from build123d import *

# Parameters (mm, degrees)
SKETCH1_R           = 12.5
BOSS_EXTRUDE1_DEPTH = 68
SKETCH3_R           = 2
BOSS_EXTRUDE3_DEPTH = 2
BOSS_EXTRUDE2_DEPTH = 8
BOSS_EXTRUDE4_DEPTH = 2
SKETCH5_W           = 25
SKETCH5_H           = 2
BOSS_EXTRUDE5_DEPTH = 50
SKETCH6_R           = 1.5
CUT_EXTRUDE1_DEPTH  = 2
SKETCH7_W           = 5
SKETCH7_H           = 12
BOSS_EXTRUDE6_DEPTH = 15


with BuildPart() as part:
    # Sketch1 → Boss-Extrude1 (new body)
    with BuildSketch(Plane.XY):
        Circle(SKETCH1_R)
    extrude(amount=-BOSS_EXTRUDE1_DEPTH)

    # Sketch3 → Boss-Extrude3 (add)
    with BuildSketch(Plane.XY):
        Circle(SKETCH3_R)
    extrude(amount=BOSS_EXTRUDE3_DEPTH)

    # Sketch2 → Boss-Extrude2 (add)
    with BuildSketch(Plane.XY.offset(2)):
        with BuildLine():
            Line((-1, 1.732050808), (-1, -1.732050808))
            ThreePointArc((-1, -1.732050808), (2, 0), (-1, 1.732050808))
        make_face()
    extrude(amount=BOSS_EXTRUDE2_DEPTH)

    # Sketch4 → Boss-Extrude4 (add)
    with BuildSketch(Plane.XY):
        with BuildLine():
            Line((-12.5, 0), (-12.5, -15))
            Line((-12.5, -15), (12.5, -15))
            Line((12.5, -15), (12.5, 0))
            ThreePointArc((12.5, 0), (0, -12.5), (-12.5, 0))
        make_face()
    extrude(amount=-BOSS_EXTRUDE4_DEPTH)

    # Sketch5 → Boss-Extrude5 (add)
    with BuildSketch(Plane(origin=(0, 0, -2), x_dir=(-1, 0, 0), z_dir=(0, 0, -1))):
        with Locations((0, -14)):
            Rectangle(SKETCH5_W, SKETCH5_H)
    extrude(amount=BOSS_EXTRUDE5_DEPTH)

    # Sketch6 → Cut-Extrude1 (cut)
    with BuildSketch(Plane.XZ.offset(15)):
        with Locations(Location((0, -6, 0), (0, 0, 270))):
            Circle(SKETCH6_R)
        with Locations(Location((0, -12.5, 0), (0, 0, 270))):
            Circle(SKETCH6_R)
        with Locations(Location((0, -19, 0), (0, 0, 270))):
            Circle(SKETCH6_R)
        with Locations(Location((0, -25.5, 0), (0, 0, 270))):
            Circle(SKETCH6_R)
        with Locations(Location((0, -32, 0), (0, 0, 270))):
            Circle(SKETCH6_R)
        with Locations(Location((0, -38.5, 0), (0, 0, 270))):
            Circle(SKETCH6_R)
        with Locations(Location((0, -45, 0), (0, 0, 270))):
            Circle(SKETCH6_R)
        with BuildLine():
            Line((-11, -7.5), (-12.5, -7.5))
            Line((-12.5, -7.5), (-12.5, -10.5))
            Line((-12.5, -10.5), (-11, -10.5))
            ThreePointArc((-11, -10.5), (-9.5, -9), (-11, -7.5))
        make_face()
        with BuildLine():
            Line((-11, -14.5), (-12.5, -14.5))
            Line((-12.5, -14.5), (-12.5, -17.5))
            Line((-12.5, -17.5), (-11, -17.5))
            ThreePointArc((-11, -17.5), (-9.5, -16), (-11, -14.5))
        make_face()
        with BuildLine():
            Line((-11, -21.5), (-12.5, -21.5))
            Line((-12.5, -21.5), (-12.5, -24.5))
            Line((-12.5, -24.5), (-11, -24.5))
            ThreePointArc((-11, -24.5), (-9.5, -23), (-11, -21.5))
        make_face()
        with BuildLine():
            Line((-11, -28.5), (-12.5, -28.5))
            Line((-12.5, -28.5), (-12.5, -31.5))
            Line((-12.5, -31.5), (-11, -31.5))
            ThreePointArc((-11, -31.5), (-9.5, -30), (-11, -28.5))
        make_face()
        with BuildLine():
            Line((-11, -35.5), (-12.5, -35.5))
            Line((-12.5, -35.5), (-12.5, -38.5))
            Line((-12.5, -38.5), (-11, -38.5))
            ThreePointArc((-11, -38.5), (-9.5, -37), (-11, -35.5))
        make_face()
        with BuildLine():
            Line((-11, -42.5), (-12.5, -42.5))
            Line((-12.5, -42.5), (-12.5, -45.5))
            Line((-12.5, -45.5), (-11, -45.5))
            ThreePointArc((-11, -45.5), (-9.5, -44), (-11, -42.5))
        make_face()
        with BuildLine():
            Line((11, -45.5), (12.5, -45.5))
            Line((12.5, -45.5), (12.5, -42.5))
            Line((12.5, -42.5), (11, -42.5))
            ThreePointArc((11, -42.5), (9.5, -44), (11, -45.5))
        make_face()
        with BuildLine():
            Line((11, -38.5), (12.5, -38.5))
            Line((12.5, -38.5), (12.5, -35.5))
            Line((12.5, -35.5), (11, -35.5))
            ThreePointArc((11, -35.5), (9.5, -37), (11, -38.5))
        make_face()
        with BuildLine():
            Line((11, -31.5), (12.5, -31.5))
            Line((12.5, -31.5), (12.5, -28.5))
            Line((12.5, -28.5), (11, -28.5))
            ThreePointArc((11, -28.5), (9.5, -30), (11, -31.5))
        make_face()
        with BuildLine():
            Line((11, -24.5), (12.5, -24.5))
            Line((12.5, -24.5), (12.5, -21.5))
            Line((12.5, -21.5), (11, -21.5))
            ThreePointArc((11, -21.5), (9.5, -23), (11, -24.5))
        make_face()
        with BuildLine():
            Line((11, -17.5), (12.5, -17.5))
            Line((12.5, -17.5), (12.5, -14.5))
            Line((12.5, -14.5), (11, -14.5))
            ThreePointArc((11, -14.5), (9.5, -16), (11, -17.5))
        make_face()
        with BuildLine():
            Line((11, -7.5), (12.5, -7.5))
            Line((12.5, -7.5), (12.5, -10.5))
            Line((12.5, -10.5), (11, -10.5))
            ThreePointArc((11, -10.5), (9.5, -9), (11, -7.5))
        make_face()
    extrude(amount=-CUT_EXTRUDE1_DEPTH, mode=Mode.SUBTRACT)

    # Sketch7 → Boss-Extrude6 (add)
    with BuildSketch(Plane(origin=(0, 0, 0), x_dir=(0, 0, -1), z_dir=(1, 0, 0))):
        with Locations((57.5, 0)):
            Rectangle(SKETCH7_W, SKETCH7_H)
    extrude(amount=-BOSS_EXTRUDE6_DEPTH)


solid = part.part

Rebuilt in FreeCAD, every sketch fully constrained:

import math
import FreeCAD as App
import Part
import Sketcher


def add_polygon(sketch, points):
    """Adds a closed chain of lines whose ends are joined by coincident constraints."""
    first, n = sketch.GeometryCount, len(points)
    for a, b in zip(points, points[1:] + points[:1]):
        sketch.addGeometry(Part.LineSegment(App.Vector(*a, 0), App.Vector(*b, 0)), False)
    for i in range(n):
        sketch.addConstraint(Sketcher.Constraint("Coincident", first + i, 2, first + (i + 1) % n, 1))

doc = App.newDocument("Part")
params = doc.addObject("Spreadsheet::Sheet", "Params")
for row, (alias, value) in enumerate([
    ("sketch1_diameter", "25 mm"),
    ("pad1_length", "68 mm"),
    ("sketch2_diameter", "4 mm"),
    ("pad2_length", "2 mm"),
    ("sketch3_radius", "2 mm"),
    ("pad3_length", "8 mm"),
    ("sketch4_radius", "12.5 mm"),
    ("sketch4_height", "15 mm"),
    ("pad4_length", "2 mm"),
    ("sketch5_width", "25 mm"),
    ("sketch5_height", "2 mm"),
    ("pad5_length", "50 mm"),
    ("sketch6_diameter", "3 mm"),
    ("sketch6_width", "1.5 mm"),
    ("pocket1_length", "2 mm"),
    ("sketch7_width", "12 mm"),
    ("sketch7_height", "5 mm"),
    ("pad6_length", "15 mm"),
], start=1):
    params.set(f"A{row}", alias)
    params.set(f"B{row}", "=" + value)
    params.setAlias(f"B{row}", alias)

body = doc.addObject("PartDesign::Body", "Body")

sketch1 = body.newObject("Sketcher::SketchObject", "Sketch")
sketch1.AttachmentSupport = (doc.getObject("XY_Plane"), [""])
sketch1.MapMode = "FlatFace"
sketch1.addGeometry(Part.Circle(App.Vector(0, 0, 0), App.Vector(0, 0, 1), 12), False)
sketch1.addConstraint([
    Sketcher.Constraint("Coincident", 0, 3, -1, 1),
    Sketcher.Constraint("Diameter", 0, 25.0),
])
sketch1.setExpression("Constraints[1]", "Params.sketch1_diameter")
pad1 = body.newObject("PartDesign::Pad", "Pad")
pad1.Profile = sketch1
pad1.setExpression("Length", "Params.pad1_length")
pad1.Reversed = True

sketch2 = body.newObject("Sketcher::SketchObject", "Sketch001")
sketch2.AttachmentSupport = (doc.getObject("XY_Plane"), [""])
sketch2.MapMode = "FlatFace"
sketch2.addGeometry(Part.Circle(App.Vector(0, 0, 0), App.Vector(0, 0, 1), 2), False)
sketch2.addConstraint([
    Sketcher.Constraint("Coincident", 0, 3, -1, 1),
    Sketcher.Constraint("Diameter", 0, 4.0),
])
sketch2.setExpression("Constraints[1]", "Params.sketch2_diameter")
pad2 = body.newObject("PartDesign::Pad", "Pad001")
pad2.Profile = sketch2
pad2.setExpression("Length", "Params.pad2_length")

sketch3 = body.newObject("Sketcher::SketchObject", "Sketch002")
sketch3.AttachmentSupport = (doc.getObject("XY_Plane"), [""])
sketch3.MapMode = "FlatFace"
sketch3.AttachmentOffset = App.Placement(App.Vector(0, 0, 2), App.Rotation())
sketch3.addGeometry([
    Part.LineSegment(App.Vector(-1, 1.7, 0), App.Vector(-1, -1.7, 0)),
    Part.ArcOfCircle(Part.Circle(App.Vector(0, 0, 0), App.Vector(0, 0, 1), 2), math.radians(-120), math.radians(120)),
], False)
sketch3.addConstraint([
    Sketcher.Constraint("Coincident", 0, 1, 1, 2),
    Sketcher.Constraint("Coincident", 1, 1, 0, 2),
    Sketcher.Constraint("Vertical", 0),
    Sketcher.Constraint("Coincident", 1, 3, -1, 1),
    Sketcher.Constraint("Radius", 1, 2.0),
    Sketcher.Constraint("DistanceX", 0, 1, -1, 1, 1.0),
])
sketch3.setExpression("Constraints[4]", "Params.sketch3_radius")
pad3 = body.newObject("PartDesign::Pad", "Pad002")
pad3.Profile = sketch3
pad3.setExpression("Length", "Params.pad3_length")

sketch4 = body.newObject("Sketcher::SketchObject", "Sketch003")
sketch4.AttachmentSupport = (doc.getObject("XY_Plane"), [""])
sketch4.MapMode = "FlatFace"
sketch4.addGeometry([
    Part.LineSegment(App.Vector(-12, 0, 0), App.Vector(-12, -15, 0)),
    Part.LineSegment(App.Vector(-12, -15, 0), App.Vector(12, -15, 0)),
    Part.LineSegment(App.Vector(12, -15, 0), App.Vector(12, 0, 0)),
    Part.ArcOfCircle(Part.Circle(App.Vector(0, 0, 0), App.Vector(0, 0, 1), 12), math.radians(180), math.radians(360)),
], False)
sketch4.addConstraint([
    Sketcher.Constraint("Coincident", 0, 2, 1, 1),
    Sketcher.Constraint("Coincident", 1, 2, 2, 1),
    Sketcher.Constraint("Tangent", 2, 2, 3, 2),
    Sketcher.Constraint("Tangent", 3, 1, 0, 1),
    Sketcher.Constraint("Vertical", 0),
    Sketcher.Constraint("Horizontal", 1),
    Sketcher.Constraint("Vertical", 2),
    Sketcher.Constraint("Coincident", 3, 3, -1, 1),
    Sketcher.Constraint("Radius", 3, 12.5),
    Sketcher.Constraint("DistanceY", 0, 2, 0, 1, 15.0),
])
sketch4.setExpression("Constraints[8]", "Params.sketch4_radius")
sketch4.setExpression("Constraints[9]", "Params.sketch4_height")
pad4 = body.newObject("PartDesign::Pad", "Pad003")
pad4.Profile = sketch4
pad4.setExpression("Length", "Params.pad4_length")
pad4.Reversed = True

sketch5 = body.newObject("Sketcher::SketchObject", "Sketch004")
sketch5.AttachmentSupport = (doc.getObject("XY_Plane"), [""])
sketch5.MapMode = "FlatFace"
sketch5.AttachmentOffset = App.Placement(App.Vector(0, 0, -2), App.Rotation())
add_polygon(sketch5, [(12.5, -13), (12.5, -15), (-12.5, -15), (-12.5, -13)])
sketch5.addConstraint([
    Sketcher.Constraint("Vertical", 0),
    Sketcher.Constraint("Horizontal", 1),
    Sketcher.Constraint("Vertical", 2),
    Sketcher.Constraint("Horizontal", 3),
    Sketcher.Constraint("DistanceX", 1, 2, 1, 1, 25.0),
    Sketcher.Constraint("DistanceY", 0, 2, 0, 1, 2.0),
    Sketcher.Constraint("DistanceY", 0, 2, -1, 1, 15.0),
    Sketcher.Constraint("DistanceX", -1, 1, 0, 2, 12.5),
])
sketch5.setExpression("Constraints[8]", "Params.sketch5_width")
sketch5.setExpression("Constraints[9]", "Params.sketch5_height")
pad5 = body.newObject("PartDesign::Pad", "Pad004")
pad5.Profile = sketch5
pad5.setExpression("Length", "Params.pad5_length")
pad5.Reversed = True

sketch6 = body.newObject("Sketcher::SketchObject", "Sketch005")
sketch6.AttachmentSupport = (doc.getObject("XZ_Plane"), [""])
sketch6.MapMode = "FlatFace"
sketch6.AttachmentOffset = App.Placement(App.Vector(0, 0, 15), App.Rotation())
sketch6.addGeometry([
    Part.Circle(App.Vector(0, -6, 0), App.Vector(0, 0, 1), 1.5),
    Part.Circle(App.Vector(0, -12.5, 0), App.Vector(0, 0, 1), 1.5),
    Part.Circle(App.Vector(0, -19, 0), App.Vector(0, 0, 1), 1.5),
    Part.Circle(App.Vector(0, -25.5, 0), App.Vector(0, 0, 1), 1.5),
    Part.Circle(App.Vector(0, -32, 0), App.Vector(0, 0, 1), 1.5),
    Part.Circle(App.Vector(0, -38.5, 0), App.Vector(0, 0, 1), 1.5),
    Part.Circle(App.Vector(0, -45, 0), App.Vector(0, 0, 1), 1.5),
    Part.LineSegment(App.Vector(-11, -7.5, 0), App.Vector(-12.5, -7.5, 0)),
    Part.LineSegment(App.Vector(-12.5, -7.5, 0), App.Vector(-12.5, -10.5, 0)),
    Part.LineSegment(App.Vector(-12.5, -10.5, 0), App.Vector(-11, -10.5, 0)),
    Part.ArcOfCircle(Part.Circle(App.Vector(-11, -9, 0), App.Vector(0, 0, 1), 1.5), math.radians(-90), math.radians(90)),
    Part.LineSegment(App.Vector(-11, -14.5, 0), App.Vector(-12.5, -14.5, 0)),
    Part.LineSegment(App.Vector(-12.5, -14.5, 0), App.Vector(-12.5, -17.5, 0)),
    Part.LineSegment(App.Vector(-12.5, -17.5, 0), App.Vector(-11, -17.5, 0)),
    Part.ArcOfCircle(Part.Circle(App.Vector(-11, -16, 0), App.Vector(0, 0, 1), 1.5), math.radians(-90), math.radians(90)),
    Part.LineSegment(App.Vector(-11, -21.5, 0), App.Vector(-12.5, -21.5, 0)),
    Part.LineSegment(App.Vector(-12.5, -21.5, 0), App.Vector(-12.5, -24.5, 0)),
    Part.LineSegment(App.Vector(-12.5, -24.5, 0), App.Vector(-11, -24.5, 0)),
    Part.ArcOfCircle(Part.Circle(App.Vector(-11, -23, 0), App.Vector(0, 0, 1), 1.5), math.radians(-90), math.radians(90)),
    Part.LineSegment(App.Vector(-11, -28.5, 0), App.Vector(-12.5, -28.5, 0)),
    Part.LineSegment(App.Vector(-12.5, -28.5, 0), App.Vector(-12.5, -31.5, 0)),
    Part.LineSegment(App.Vector(-12.5, -31.5, 0), App.Vector(-11, -31.5, 0)),
    Part.ArcOfCircle(Part.Circle(App.Vector(-11, -30, 0), App.Vector(0, 0, 1), 1.5), math.radians(-90), math.radians(90)),
    Part.LineSegment(App.Vector(-11, -35.5, 0), App.Vector(-12.5, -35.5, 0)),
    Part.LineSegment(App.Vector(-12.5, -35.5, 0), App.Vector(-12.5, -38.5, 0)),
    Part.LineSegment(App.Vector(-12.5, -38.5, 0), App.Vector(-11, -38.5, 0)),
    Part.ArcOfCircle(Part.Circle(App.Vector(-11, -37, 0), App.Vector(0, 0, 1), 1.5), math.radians(-90), math.radians(90)),
    Part.LineSegment(App.Vector(-11, -42.5, 0), App.Vector(-12.5, -42.5, 0)),
    Part.LineSegment(App.Vector(-12.5, -42.5, 0), App.Vector(-12.5, -45.5, 0)),
    Part.LineSegment(App.Vector(-12.5, -45.5, 0), App.Vector(-11, -45.5, 0)),
    Part.ArcOfCircle(Part.Circle(App.Vector(-11, -44, 0), App.Vector(0, 0, 1), 1.5), math.radians(-90), math.radians(90)),
    Part.LineSegment(App.Vector(11, -45.5, 0), App.Vector(12.5, -45.5, 0)),
    Part.LineSegment(App.Vector(12.5, -45.5, 0), App.Vector(12.5, -42.5, 0)),
    Part.LineSegment(App.Vector(12.5, -42.5, 0), App.Vector(11, -42.5, 0)),
    Part.ArcOfCircle(Part.Circle(App.Vector(11, -44, 0), App.Vector(0, 0, 1), 1.5), math.radians(90), math.radians(270)),
    Part.LineSegment(App.Vector(11, -38.5, 0), App.Vector(12.5, -38.5, 0)),
    Part.LineSegment(App.Vector(12.5, -38.5, 0), App.Vector(12.5, -35.5, 0)),
    Part.LineSegment(App.Vector(12.5, -35.5, 0), App.Vector(11, -35.5, 0)),
    Part.ArcOfCircle(Part.Circle(App.Vector(11, -37, 0), App.Vector(0, 0, 1), 1.5), math.radians(90), math.radians(270)),
    Part.LineSegment(App.Vector(11, -31.5, 0), App.Vector(12.5, -31.5, 0)),
    Part.LineSegment(App.Vector(12.5, -31.5, 0), App.Vector(12.5, -28.5, 0)),
    Part.LineSegment(App.Vector(12.5, -28.5, 0), App.Vector(11, -28.5, 0)),
    Part.ArcOfCircle(Part.Circle(App.Vector(11, -30, 0), App.Vector(0, 0, 1), 1.5), math.radians(90), math.radians(270)),
    Part.LineSegment(App.Vector(11, -24.5, 0), App.Vector(12.5, -24.5, 0)),
    Part.LineSegment(App.Vector(12.5, -24.5, 0), App.Vector(12.5, -21.5, 0)),
    Part.LineSegment(App.Vector(12.5, -21.5, 0), App.Vector(11, -21.5, 0)),
    Part.ArcOfCircle(Part.Circle(App.Vector(11, -23, 0), App.Vector(0, 0, 1), 1.5), math.radians(90), math.radians(270)),
    Part.LineSegment(App.Vector(11, -17.5, 0), App.Vector(12.5, -17.5, 0)),
    Part.LineSegment(App.Vector(12.5, -17.5, 0), App.Vector(12.5, -14.5, 0)),
    Part.LineSegment(App.Vector(12.5, -14.5, 0), App.Vector(11, -14.5, 0)),
    Part.ArcOfCircle(Part.Circle(App.Vector(11, -16, 0), App.Vector(0, 0, 1), 1.5), math.radians(90), math.radians(270)),
    Part.LineSegment(App.Vector(12.5, -7.5, 0), App.Vector(11, -7.5, 0)),
    Part.ArcOfCircle(Part.Circle(App.Vector(11, -9, 0), App.Vector(0, 0, 1), 1.5), math.radians(90), math.radians(270)),
    Part.LineSegment(App.Vector(11, -10.5, 0), App.Vector(12.5, -10.5, 0)),
    Part.LineSegment(App.Vector(12.5, -10.5, 0), App.Vector(12.5, -7.5, 0)),
], False)
sketch6.addConstraint([
    Sketcher.Constraint("Coincident", 7, 2, 8, 1),
    Sketcher.Constraint("Coincident", 8, 2, 9, 1),
    Sketcher.Constraint("Tangent", 9, 2, 10, 1),
    Sketcher.Constraint("Tangent", 10, 2, 7, 1),
    Sketcher.Constraint("Coincident", 11, 2, 12, 1),
    Sketcher.Constraint("Coincident", 12, 2, 13, 1),
    Sketcher.Constraint("Tangent", 13, 2, 14, 1),
    Sketcher.Constraint("Tangent", 14, 2, 11, 1),
    Sketcher.Constraint("Coincident", 15, 2, 16, 1),
    Sketcher.Constraint("Coincident", 16, 2, 17, 1),
    Sketcher.Constraint("Tangent", 17, 2, 18, 1),
    Sketcher.Constraint("Tangent", 18, 2, 15, 1),
    Sketcher.Constraint("Coincident", 19, 2, 20, 1),
    Sketcher.Constraint("Coincident", 20, 2, 21, 1),
    Sketcher.Constraint("Tangent", 21, 2, 22, 1),
    Sketcher.Constraint("Tangent", 22, 2, 19, 1),
    Sketcher.Constraint("Coincident", 23, 2, 24, 1),
    Sketcher.Constraint("Coincident", 24, 2, 25, 1),
    Sketcher.Constraint("Tangent", 25, 2, 26, 1),
    Sketcher.Constraint("Tangent", 26, 2, 23, 1),
    Sketcher.Constraint("Coincident", 27, 2, 28, 1),
    Sketcher.Constraint("Coincident", 28, 2, 29, 1),
    Sketcher.Constraint("Tangent", 29, 2, 30, 1),
    Sketcher.Constraint("Tangent", 30, 2, 27, 1),
    Sketcher.Constraint("Coincident", 31, 2, 32, 1),
    Sketcher.Constraint("Coincident", 32, 2, 33, 1),
    Sketcher.Constraint("Tangent", 33, 2, 34, 1),
    Sketcher.Constraint("Tangent", 34, 2, 31, 1),
    Sketcher.Constraint("Coincident", 35, 2, 36, 1),
    Sketcher.Constraint("Coincident", 36, 2, 37, 1),
    Sketcher.Constraint("Tangent", 37, 2, 38, 1),
    Sketcher.Constraint("Tangent", 38, 2, 35, 1),
    Sketcher.Constraint("Coincident", 39, 2, 40, 1),
    Sketcher.Constraint("Coincident", 40, 2, 41, 1),
    Sketcher.Constraint("Tangent", 41, 2, 42, 1),
    Sketcher.Constraint("Tangent", 42, 2, 39, 1),
    Sketcher.Constraint("Coincident", 43, 2, 44, 1),
    Sketcher.Constraint("Coincident", 44, 2, 45, 1),
    Sketcher.Constraint("Tangent", 45, 2, 46, 1),
    Sketcher.Constraint("Tangent", 46, 2, 43, 1),
    Sketcher.Constraint("Coincident", 47, 2, 48, 1),
    Sketcher.Constraint("Coincident", 48, 2, 49, 1),
    Sketcher.Constraint("Tangent", 49, 2, 50, 1),
    Sketcher.Constraint("Tangent", 50, 2, 47, 1),
    Sketcher.Constraint("Tangent", 51, 2, 52, 1),
    Sketcher.Constraint("Tangent", 52, 2, 53, 1),
    Sketcher.Constraint("Coincident", 53, 2, 54, 1),
    Sketcher.Constraint("Coincident", 54, 2, 51, 1),
    Sketcher.Constraint("Horizontal", 7),
    Sketcher.Constraint("Vertical", 8),
    Sketcher.Constraint("Horizontal", 9),
    Sketcher.Constraint("Horizontal", 11),
    Sketcher.Constraint("Vertical", 12),
    Sketcher.Constraint("Horizontal", 13),
    Sketcher.Constraint("Horizontal", 15),
    Sketcher.Constraint("Vertical", 16),
    Sketcher.Constraint("Horizontal", 17),
    Sketcher.Constraint("Horizontal", 19),
    Sketcher.Constraint("Vertical", 20),
    Sketcher.Constraint("Horizontal", 21),
    Sketcher.Constraint("Horizontal", 23),
    Sketcher.Constraint("Vertical", 24),
    Sketcher.Constraint("Horizontal", 25),
    Sketcher.Constraint("Horizontal", 27),
    Sketcher.Constraint("Vertical", 28),
    Sketcher.Constraint("Horizontal", 29),
    Sketcher.Constraint("Horizontal", 31),
    Sketcher.Constraint("Vertical", 32),
    Sketcher.Constraint("Horizontal", 33),
    Sketcher.Constraint("Horizontal", 35),
    Sketcher.Constraint("Vertical", 36),
    Sketcher.Constraint("Horizontal", 37),
    Sketcher.Constraint("Horizontal", 39),
    Sketcher.Constraint("Vertical", 40),
    Sketcher.Constraint("Horizontal", 41),
    Sketcher.Constraint("Horizontal", 43),
    Sketcher.Constraint("Vertical", 44),
    Sketcher.Constraint("Horizontal", 45),
    Sketcher.Constraint("Horizontal", 47),
    Sketcher.Constraint("Vertical", 48),
    Sketcher.Constraint("Horizontal", 49),
    Sketcher.Constraint("Horizontal", 51),
    Sketcher.Constraint("Horizontal", 53),
    Sketcher.Constraint("Vertical", 54),
    Sketcher.Constraint("Equal", 0, 1),
    Sketcher.Constraint("Equal", 1, 2),
    Sketcher.Constraint("Equal", 2, 3),
    Sketcher.Constraint("Equal", 3, 4),
    Sketcher.Constraint("Equal", 4, 5),
    Sketcher.Constraint("Equal", 5, 6),
    Sketcher.Constraint("Equal", 6, 10),
    Sketcher.Constraint("Equal", 10, 14),
    Sketcher.Constraint("Equal", 14, 18),
    Sketcher.Constraint("Equal", 18, 22),
    Sketcher.Constraint("Equal", 22, 26),
    Sketcher.Constraint("Equal", 26, 30),
    Sketcher.Constraint("Equal", 30, 34),
    Sketcher.Constraint("Equal", 34, 38),
    Sketcher.Constraint("Equal", 38, 42),
    Sketcher.Constraint("Equal", 42, 46),
    Sketcher.Constraint("Equal", 46, 50),
    Sketcher.Constraint("Equal", 50, 52),
    Sketcher.Constraint("Symmetric", 30, 3, 34, 3, -2),
    Sketcher.Constraint("Symmetric", 26, 3, 38, 3, -2),
    Sketcher.Constraint("Symmetric", 22, 3, 42, 3, -2),
    Sketcher.Constraint("Symmetric", 18, 3, 46, 3, -2),
    Sketcher.Constraint("Symmetric", 14, 3, 50, 3, -2),
    Sketcher.Constraint("Symmetric", 10, 3, 52, 3, -2),
    Sketcher.Constraint("PointOnObject", 0, 3, -2),
    Sketcher.Constraint("PointOnObject", 1, 3, -2),
    Sketcher.Constraint("PointOnObject", 2, 3, -2),
    Sketcher.Constraint("PointOnObject", 3, 3, -2),
    Sketcher.Constraint("PointOnObject", 4, 3, -2),
    Sketcher.Constraint("PointOnObject", 5, 3, -2),
    Sketcher.Constraint("PointOnObject", 6, 3, -2),
    Sketcher.Constraint("Horizontal", 5, 3, 24, 2),
    Sketcher.Constraint("Vertical", 10, 3, 14, 3),
    Sketcher.Constraint("Vertical", 14, 3, 18, 3),
    Sketcher.Constraint("Vertical", 18, 3, 22, 3),
    Sketcher.Constraint("Vertical", 22, 3, 26, 3),
    Sketcher.Constraint("Vertical", 26, 3, 30, 3),
    Sketcher.Constraint("Vertical", 8, 2, 11, 2),
    Sketcher.Constraint("Vertical", 12, 2, 15, 2),
    Sketcher.Constraint("Vertical", 16, 2, 19, 2),
    Sketcher.Constraint("Vertical", 20, 2, 23, 2),
    Sketcher.Constraint("Vertical", 24, 2, 27, 2),
    Sketcher.Constraint("Vertical", 32, 2, 35, 2),
    Sketcher.Constraint("Vertical", 36, 2, 39, 2),
    Sketcher.Constraint("Vertical", 40, 2, 43, 2),
    Sketcher.Constraint("Vertical", 44, 2, 47, 2),
    Sketcher.Constraint("Vertical", 48, 2, 53, 2),
    Sketcher.Constraint("Equal", 29, 31),
    Sketcher.Constraint("Diameter", 0, 3.0),
    Sketcher.Constraint("DistanceX", 7, 2, 7, 1, 1.5),
    Sketcher.Constraint("DistanceY", 0, 3, -1, 1, 6.0),
    Sketcher.Constraint("DistanceY", 2, 3, -1, 1, 19.0),
    Sketcher.Constraint("DistanceY", 4, 3, -1, 1, 32.0),
    Sketcher.Constraint("DistanceY", 6, 3, -1, 1, 45.0),
    Sketcher.Constraint("DistanceX", 10, 3, -1, 1, 11.0),
    Sketcher.Constraint("DistanceY", 10, 3, -1, 1, 9.0),
    Sketcher.Constraint("DistanceY", 14, 3, -1, 1, 16.0),
    Sketcher.Constraint("DistanceY", 18, 3, -1, 1, 23.0),
    Sketcher.Constraint("DistanceY", 22, 3, -1, 1, 30.0),
    Sketcher.Constraint("DistanceY", 26, 3, -1, 1, 37.0),
    Sketcher.Constraint("DistanceY", 30, 3, -1, 1, 44.0),
    Sketcher.Constraint("DistanceY", 1, 3, -1, 1, 12.5),
    Sketcher.Constraint("DistanceY", 3, 3, -1, 1, 25.5),
])
sketch6.setExpression("Constraints[132]", "Params.sketch6_diameter")
sketch6.setExpression("Constraints[133]", "Params.sketch6_width")
pocket1 = body.newObject("PartDesign::Pocket", "Pocket")
pocket1.Profile = sketch6
pocket1.setExpression("Length", "Params.pocket1_length")

sketch7 = body.newObject("Sketcher::SketchObject", "Sketch006")
sketch7.AttachmentSupport = (doc.getObject("YZ_Plane"), [""])
sketch7.MapMode = "FlatFace"
add_polygon(sketch7, [(6, -55), (-6, -55), (-6, -60), (6, -60)])
sketch7.addConstraint([
    Sketcher.Constraint("Horizontal", 0),
    Sketcher.Constraint("Vertical", 1),
    Sketcher.Constraint("Horizontal", 2),
    Sketcher.Constraint("Vertical", 3),
    Sketcher.Constraint("DistanceX", 0, 2, 0, 1, 12.0),
    Sketcher.Constraint("DistanceY", 1, 2, 1, 1, 5.0),
    Sketcher.Constraint("DistanceX", 0, 2, -1, 1, 6.0),
    Sketcher.Constraint("DistanceY", 0, 2, -1, 1, 55.0),
])
sketch7.setExpression("Constraints[8]", "Params.sketch7_width")
sketch7.setExpression("Constraints[9]", "Params.sketch7_height")
pad6 = body.newObject("PartDesign::Pad", "Pad005")
pad6.Profile = sketch7
pad6.setExpression("Length", "Params.pad6_length")
pad6.Reversed = True

doc.recompute()
